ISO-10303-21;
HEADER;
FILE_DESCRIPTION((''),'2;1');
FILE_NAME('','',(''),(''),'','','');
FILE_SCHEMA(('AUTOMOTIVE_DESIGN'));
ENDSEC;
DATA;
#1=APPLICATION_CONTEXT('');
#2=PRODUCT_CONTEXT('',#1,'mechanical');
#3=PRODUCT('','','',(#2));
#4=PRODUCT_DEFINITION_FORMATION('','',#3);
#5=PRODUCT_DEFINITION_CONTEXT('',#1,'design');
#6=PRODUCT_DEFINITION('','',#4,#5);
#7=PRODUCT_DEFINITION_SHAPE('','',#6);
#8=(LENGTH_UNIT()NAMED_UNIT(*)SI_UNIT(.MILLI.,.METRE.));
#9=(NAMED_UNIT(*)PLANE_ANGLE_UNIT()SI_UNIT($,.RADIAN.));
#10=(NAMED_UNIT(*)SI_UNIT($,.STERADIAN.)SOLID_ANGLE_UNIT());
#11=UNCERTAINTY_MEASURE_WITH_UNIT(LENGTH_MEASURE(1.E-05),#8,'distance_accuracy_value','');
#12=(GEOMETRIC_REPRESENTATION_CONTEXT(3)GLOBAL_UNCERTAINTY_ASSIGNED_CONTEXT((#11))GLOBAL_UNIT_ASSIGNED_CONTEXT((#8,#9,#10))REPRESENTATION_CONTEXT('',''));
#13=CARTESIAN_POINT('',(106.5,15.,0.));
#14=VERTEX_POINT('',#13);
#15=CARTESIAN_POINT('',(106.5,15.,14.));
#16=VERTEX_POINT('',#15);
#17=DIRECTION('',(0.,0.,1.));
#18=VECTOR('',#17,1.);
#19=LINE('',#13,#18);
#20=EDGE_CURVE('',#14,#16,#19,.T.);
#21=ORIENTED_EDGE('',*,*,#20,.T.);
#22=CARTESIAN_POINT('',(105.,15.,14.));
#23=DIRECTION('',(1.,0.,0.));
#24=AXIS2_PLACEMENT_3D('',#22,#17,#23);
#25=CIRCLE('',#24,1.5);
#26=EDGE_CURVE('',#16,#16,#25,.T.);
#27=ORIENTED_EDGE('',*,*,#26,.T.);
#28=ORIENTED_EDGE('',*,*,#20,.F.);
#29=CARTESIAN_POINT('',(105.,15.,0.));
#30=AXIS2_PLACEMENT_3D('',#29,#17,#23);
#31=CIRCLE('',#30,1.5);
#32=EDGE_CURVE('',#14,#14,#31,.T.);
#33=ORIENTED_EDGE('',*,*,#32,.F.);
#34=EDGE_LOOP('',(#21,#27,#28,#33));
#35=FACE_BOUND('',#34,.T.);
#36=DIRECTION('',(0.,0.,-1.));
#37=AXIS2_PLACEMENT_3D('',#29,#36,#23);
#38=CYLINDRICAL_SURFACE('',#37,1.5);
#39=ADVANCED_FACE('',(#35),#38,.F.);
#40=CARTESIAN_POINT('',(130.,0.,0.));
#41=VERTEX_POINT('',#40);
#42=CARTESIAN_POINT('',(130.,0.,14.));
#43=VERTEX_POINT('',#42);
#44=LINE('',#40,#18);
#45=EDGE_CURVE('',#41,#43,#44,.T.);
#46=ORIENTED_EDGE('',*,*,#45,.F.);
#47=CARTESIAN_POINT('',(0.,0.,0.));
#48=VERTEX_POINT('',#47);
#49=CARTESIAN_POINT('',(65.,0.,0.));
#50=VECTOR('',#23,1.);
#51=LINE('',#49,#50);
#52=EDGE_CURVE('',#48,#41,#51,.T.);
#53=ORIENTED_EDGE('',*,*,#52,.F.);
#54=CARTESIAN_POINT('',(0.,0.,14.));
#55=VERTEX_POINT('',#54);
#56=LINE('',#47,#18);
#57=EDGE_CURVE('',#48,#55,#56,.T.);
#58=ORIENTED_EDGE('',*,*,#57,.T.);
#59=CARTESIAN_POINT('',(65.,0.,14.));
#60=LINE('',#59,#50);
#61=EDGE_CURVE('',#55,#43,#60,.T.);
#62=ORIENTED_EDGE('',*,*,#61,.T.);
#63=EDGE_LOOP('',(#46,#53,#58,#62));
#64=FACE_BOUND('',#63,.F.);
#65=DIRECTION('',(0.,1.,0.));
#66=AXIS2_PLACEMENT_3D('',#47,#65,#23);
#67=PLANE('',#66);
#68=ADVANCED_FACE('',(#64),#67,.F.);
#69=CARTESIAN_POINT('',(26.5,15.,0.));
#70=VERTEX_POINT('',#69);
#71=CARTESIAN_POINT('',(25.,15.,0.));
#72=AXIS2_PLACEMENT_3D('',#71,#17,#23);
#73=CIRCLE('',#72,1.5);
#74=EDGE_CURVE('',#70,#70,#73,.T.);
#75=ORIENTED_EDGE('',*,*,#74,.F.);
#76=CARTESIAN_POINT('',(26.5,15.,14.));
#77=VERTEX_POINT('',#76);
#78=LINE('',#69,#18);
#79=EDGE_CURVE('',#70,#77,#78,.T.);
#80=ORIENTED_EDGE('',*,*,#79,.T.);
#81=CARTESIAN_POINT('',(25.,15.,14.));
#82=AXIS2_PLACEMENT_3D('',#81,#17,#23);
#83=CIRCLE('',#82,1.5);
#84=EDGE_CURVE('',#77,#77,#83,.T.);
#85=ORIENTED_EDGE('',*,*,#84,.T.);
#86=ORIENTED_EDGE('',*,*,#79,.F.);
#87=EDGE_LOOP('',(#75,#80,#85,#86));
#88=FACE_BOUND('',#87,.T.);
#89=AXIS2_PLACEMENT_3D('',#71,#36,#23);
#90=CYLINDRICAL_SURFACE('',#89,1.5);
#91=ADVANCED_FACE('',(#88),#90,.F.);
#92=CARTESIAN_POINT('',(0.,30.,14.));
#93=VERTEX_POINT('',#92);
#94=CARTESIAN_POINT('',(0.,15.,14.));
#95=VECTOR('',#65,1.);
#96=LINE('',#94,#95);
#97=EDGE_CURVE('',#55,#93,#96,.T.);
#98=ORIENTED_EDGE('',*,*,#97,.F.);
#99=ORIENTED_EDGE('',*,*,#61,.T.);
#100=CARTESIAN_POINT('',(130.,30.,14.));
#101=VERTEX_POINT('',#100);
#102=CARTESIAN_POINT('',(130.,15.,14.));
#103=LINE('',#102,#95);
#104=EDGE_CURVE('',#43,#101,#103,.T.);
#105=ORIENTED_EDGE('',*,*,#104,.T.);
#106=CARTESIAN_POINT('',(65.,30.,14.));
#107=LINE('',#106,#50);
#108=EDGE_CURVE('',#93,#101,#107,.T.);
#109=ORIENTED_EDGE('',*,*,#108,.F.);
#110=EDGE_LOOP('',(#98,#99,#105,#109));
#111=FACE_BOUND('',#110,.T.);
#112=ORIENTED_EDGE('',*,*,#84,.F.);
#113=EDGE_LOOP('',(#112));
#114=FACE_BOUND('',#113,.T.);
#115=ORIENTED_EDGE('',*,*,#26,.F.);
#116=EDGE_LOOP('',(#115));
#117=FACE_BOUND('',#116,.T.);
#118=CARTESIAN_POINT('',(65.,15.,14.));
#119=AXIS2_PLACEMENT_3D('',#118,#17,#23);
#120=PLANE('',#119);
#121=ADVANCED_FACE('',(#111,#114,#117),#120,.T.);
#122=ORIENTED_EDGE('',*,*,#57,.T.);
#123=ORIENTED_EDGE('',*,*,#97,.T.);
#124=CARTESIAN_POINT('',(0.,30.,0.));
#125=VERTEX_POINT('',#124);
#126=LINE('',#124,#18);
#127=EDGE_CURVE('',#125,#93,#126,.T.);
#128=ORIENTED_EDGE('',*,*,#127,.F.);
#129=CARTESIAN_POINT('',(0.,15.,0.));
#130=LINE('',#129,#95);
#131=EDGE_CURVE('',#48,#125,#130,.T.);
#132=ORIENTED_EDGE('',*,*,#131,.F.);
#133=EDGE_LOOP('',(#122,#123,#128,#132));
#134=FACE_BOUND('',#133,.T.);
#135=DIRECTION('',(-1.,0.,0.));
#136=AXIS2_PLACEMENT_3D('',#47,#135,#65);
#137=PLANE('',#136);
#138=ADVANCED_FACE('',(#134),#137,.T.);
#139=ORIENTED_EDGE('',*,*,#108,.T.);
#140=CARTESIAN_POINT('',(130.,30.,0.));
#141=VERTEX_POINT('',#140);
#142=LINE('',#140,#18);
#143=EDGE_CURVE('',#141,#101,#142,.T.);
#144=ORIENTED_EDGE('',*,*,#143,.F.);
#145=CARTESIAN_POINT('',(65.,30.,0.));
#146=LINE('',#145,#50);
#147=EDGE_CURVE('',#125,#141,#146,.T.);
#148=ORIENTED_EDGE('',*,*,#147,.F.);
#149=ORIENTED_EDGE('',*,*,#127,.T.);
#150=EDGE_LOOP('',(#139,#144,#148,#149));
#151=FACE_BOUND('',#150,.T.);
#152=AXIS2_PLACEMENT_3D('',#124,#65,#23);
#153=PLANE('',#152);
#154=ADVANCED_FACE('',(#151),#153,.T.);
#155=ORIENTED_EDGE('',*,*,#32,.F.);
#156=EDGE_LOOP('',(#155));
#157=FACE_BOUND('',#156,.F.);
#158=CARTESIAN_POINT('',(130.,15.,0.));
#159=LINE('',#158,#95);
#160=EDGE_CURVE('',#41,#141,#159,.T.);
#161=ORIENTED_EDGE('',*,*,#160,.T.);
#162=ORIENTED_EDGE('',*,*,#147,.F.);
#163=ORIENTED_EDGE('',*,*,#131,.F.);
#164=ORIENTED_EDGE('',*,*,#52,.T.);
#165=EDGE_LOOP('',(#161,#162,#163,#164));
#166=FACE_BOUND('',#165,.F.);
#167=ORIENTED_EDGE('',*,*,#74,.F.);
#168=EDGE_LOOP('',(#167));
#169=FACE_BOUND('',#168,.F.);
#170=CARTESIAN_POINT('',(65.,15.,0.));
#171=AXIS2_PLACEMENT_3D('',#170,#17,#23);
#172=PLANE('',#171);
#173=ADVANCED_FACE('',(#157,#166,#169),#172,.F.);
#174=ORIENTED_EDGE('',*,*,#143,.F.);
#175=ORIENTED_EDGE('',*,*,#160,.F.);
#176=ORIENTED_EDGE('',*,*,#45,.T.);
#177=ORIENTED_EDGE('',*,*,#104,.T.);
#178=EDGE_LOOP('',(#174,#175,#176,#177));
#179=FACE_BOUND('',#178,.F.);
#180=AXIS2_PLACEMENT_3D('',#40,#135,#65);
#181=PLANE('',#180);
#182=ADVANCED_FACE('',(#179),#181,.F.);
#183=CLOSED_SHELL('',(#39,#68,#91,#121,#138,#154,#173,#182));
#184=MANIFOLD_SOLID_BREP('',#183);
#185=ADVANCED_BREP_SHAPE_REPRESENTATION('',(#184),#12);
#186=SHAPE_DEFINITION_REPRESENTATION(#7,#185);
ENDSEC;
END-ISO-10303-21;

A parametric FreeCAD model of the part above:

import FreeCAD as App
import Part
import Sketcher
from FreeCAD import Vector

doc = App.newDocument("Part")
body = doc.addObject("PartDesign::Body", "Body")

sketch1 = doc.addObject("Sketcher::SketchObject", "Sketch")
body.addObject(sketch1)
sketch1.AttachmentSupport = (doc.XY_Plane, [""])
sketch1.MapMode = "FlatFace"
sketch1.addGeometry([
    Part.LineSegment(Vector(0, 30, 0), Vector(0, 0, 0)),
    Part.LineSegment(Vector(0, 0, 0), Vector(130, 0, 0)),
    Part.LineSegment(Vector(130, 0, 0), Vector(130, 30, 0)),
    Part.LineSegment(Vector(130, 30, 0), Vector(0, 30, 0)),
    Part.Circle(Vector(25, 15, 0), Vector(0, 0, 1), 1.5),
    Part.Circle(Vector(105, 15, 0), Vector(0, 0, 1), 1.5),
], False)
sketch1.addConstraint([
    Sketcher.Constraint("Coincident", 0, 2, 1, 1),
    Sketcher.Constraint("Coincident", 1, 2, 2, 1),
    Sketcher.Constraint("Coincident", 2, 2, 3, 1),
    Sketcher.Constraint("Coincident", 3, 2, 0, 1),
    Sketcher.Constraint("Vertical", 0),
    Sketcher.Constraint("Horizontal", 1),
    Sketcher.Constraint("Vertical", 2),
    Sketcher.Constraint("Horizontal", 3),
    Sketcher.Constraint("Coincident", 0, 2, -1, 1),
    Sketcher.Constraint("Equal", 4, 5),
    Sketcher.Constraint("Horizontal", 4, 3, 5, 3),
    Sketcher.Constraint("Diameter", 4, 3.0),
    Sketcher.Constraint("DistanceX", 1, 1, 1, 2, 130.0),
    Sketcher.Constraint("DistanceY", 0, 2, 0, 1, 30.0),
    Sketcher.Constraint("DistanceX", -1, 1, 4, 3, 25.0),
    Sketcher.Constraint("DistanceY", -1, 1, 4, 3, 15.0),
    Sketcher.Constraint("DistanceX", -1, 1, 5, 3, 105.0),
])
pad1 = doc.addObject("PartDesign::Pad", "Pad")
body.addObject(pad1)
pad1.Profile = sketch1
pad1.Length = 14

doc.recompute()
